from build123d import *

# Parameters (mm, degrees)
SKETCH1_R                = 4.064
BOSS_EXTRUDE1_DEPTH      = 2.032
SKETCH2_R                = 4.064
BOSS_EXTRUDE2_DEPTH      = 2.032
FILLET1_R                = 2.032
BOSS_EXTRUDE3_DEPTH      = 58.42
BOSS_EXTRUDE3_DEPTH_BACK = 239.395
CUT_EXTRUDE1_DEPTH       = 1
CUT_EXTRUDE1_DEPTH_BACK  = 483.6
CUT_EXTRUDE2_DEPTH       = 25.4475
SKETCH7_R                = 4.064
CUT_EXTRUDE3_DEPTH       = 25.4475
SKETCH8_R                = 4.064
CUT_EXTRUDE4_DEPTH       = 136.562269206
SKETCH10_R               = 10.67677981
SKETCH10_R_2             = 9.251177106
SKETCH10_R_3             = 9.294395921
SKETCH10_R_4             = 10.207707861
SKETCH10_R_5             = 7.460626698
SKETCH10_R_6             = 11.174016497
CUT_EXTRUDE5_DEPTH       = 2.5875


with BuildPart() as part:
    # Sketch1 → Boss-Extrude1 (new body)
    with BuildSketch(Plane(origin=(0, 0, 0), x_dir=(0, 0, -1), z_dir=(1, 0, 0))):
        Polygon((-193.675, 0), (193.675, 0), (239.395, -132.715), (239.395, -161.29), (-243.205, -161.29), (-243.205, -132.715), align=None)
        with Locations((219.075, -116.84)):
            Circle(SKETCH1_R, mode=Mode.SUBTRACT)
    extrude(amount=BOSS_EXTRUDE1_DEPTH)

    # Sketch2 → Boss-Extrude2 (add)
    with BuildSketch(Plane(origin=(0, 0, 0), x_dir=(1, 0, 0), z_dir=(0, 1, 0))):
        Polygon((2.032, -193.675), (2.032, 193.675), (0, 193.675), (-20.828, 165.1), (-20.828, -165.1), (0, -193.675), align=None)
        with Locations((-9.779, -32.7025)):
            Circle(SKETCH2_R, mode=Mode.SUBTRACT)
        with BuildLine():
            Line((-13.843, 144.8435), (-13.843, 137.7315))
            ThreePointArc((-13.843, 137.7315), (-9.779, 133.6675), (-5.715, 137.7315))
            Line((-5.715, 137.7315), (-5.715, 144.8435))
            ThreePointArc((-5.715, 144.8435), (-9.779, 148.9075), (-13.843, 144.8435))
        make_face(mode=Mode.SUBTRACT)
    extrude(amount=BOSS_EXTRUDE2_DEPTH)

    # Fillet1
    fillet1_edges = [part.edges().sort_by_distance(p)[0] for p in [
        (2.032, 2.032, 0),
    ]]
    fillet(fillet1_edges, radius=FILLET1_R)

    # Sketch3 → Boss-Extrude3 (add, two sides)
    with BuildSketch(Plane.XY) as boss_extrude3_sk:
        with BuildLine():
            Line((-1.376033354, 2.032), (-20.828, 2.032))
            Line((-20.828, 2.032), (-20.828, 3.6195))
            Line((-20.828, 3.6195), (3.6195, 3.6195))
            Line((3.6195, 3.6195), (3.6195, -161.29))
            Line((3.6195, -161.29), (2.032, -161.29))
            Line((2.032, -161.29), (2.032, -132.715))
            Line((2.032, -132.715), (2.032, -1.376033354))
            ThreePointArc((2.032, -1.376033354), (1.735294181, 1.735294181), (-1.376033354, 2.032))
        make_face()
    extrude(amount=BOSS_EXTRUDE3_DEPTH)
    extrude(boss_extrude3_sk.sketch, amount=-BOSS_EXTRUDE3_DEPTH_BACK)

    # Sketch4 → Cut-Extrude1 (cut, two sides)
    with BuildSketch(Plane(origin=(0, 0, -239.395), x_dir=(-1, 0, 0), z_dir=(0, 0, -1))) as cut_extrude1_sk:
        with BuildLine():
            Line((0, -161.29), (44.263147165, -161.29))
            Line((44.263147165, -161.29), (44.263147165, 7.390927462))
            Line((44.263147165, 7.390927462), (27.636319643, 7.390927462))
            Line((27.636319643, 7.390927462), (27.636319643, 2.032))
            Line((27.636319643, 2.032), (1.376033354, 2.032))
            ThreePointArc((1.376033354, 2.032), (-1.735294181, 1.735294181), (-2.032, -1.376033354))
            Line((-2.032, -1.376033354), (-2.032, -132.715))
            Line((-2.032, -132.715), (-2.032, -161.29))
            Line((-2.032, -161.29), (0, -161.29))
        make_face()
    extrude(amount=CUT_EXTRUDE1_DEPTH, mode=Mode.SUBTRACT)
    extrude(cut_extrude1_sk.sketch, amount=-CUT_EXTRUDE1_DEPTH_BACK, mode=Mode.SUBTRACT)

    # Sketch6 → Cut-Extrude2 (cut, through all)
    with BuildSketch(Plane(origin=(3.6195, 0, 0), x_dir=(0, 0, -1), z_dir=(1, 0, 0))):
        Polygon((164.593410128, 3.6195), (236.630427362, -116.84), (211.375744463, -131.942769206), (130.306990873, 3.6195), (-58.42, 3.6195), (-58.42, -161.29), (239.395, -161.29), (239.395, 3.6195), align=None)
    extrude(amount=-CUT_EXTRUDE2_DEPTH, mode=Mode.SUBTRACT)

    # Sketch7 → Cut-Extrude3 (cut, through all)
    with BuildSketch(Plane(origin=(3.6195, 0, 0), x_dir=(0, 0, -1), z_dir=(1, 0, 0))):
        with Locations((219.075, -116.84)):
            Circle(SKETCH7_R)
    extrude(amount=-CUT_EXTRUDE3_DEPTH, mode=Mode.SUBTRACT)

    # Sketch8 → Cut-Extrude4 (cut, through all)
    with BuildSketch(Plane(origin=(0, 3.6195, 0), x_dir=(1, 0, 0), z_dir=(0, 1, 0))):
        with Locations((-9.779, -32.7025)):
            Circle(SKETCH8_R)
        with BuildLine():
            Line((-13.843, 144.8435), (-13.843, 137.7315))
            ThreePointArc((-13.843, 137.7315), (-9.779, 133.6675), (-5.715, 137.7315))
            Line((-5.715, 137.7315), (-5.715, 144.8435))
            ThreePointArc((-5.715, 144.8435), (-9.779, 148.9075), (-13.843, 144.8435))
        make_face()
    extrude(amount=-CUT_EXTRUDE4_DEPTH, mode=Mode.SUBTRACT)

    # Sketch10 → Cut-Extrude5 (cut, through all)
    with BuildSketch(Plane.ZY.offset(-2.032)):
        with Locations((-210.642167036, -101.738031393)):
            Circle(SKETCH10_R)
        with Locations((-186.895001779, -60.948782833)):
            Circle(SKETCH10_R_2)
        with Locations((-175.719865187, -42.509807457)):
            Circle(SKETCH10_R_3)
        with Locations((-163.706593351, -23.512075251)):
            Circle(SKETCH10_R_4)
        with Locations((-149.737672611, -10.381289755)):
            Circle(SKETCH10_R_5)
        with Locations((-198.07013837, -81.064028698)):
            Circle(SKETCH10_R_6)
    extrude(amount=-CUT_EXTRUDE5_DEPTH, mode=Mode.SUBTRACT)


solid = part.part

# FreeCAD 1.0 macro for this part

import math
import FreeCAD as App
import Part
import Sketcher
Q = App.Units.Quantity


def edges_at(feature, points):
    """Names of the edges that pass closest to the given points."""
    edges = feature.Shape.Edges
    near = lambda p: min(range(len(edges)), key=lambda i: edges[i].distToShape(Part.Vertex(*p))[0])
    return sorted({f"Edge{near(p) + 1}" for p in points})


def add_polygon(sketch, points):
    """Adds a closed chain of lines whose ends are joined by coincident constraints."""
    first, n = sketch.GeometryCount, len(points)
    for a, b in zip(points, points[1:] + points[:1]):
        sketch.addGeometry(Part.LineSegment(App.Vector(*a, 0), App.Vector(*b, 0)), False)
    for i in range(n):
        sketch.addConstraint(Sketcher.Constraint("Coincident", first + i, 2, first + (i + 1) % n, 1))

doc = App.newDocument("Part")
body = doc.addObject("PartDesign::Body", "Body")

sketch1 = doc.addObject("Sketcher::SketchObject", "Sketch")
body.addObject(sketch1)
sketch1.AttachmentSupport = (doc.YZ_Plane, [""])
sketch1.MapMode = "FlatFace"
add_polygon(sketch1, [(0, -193.7), (0, 193.7), (-132.7, 243.2), (-161.3, 243.2), (-161.3, -239.4), (-132.7, -239.4)])
sketch1.addGeometry(Part.Circle(App.Vector(-116.8, -219.1, 0), App.Vector(0, 0, 1), 4.1), False)
sketch1.addConstraint([
    Sketcher.Constraint("Vertical", 0),
    Sketcher.Constraint("Horizontal", 2),
    Sketcher.Constraint("Vertical", 3),
    Sketcher.Constraint("Horizontal", 4),
    Sketcher.Constraint("Symmetric", 0, 2, 5, 2, -1, 1),
    Sketcher.Constraint("Vertical", 1, 2, 4, 2),
    Sketcher.Constraint("Diameter", 6, Q("0.32 in")),
    Sketcher.Constraint("DistanceY", 3, 2, 3, 1, Q("19 in")),
    Sketcher.Constraint("DistanceY", 6, 3, 5, 2, Q("1 in")),
    Sketcher.Constraint("DistanceY", 0, 1, 0, 2, Q("15.25 in")),
    Sketcher.Constraint("DistanceX", 6, 3, -1, 1, Q("4.6 in")),
    Sketcher.Constraint("DistanceY", 6, 3, 1, 2, Q("18.2 in")),
    Sketcher.Constraint("DistanceX", 2, 2, 2, 1, Q("1.125 in")),
    Sketcher.Constraint("DistanceX", 2, 2, -1, 1, Q("6.35 in")),
])
pad1 = doc.addObject("PartDesign::Pad", "Pad")
body.addObject(pad1)
pad1.Profile = sketch1
pad1.Length = Q("0.08 in")

sketch2 = doc.addObject("Sketcher::SketchObject", "Sketch001")
body.addObject(sketch2)
sketch2.AttachmentSupport = (doc.XZ_Plane, [""])
sketch2.MapMode = "FlatFace"
add_polygon(sketch2, [(2, 193.7), (2, -193.7), (0, -193.7), (-20.8, -165.1), (-20.8, 165.1), (0, 193.7)])
sketch2.addGeometry(Part.Circle(App.Vector(-9.8, 32.7, 0), App.Vector(0, 0, 1), 4.1), False)
sketch2.addGeometry(Part.LineSegment(App.Vector(-13.8, -137.7, 0), App.Vector(-13.8, -144.8, 0)), False)
sketch2.addGeometry(Part.ArcOfCircle(Part.Circle(App.Vector(-9.8, -144.8, 0), App.Vector(0, 0, 1), 4.1), math.radians(180), math.radians(360)), False)
sketch2.addGeometry(Part.LineSegment(App.Vector(-5.7, -144.8, 0), App.Vector(-5.7, -137.7, 0)), False)
sketch2.addGeometry(Part.ArcOfCircle(Part.Circle(App.Vector(-9.8, -137.7, 0), App.Vector(0, 0, 1), 4.1), math.radians(0), math.radians(180)), False)
sketch2.addConstraint([
    Sketcher.Constraint("Tangent", 7, 2, 8, 1),
    Sketcher.Constraint("Tangent", 8, 2, 9, 1),
    Sketcher.Constraint("Tangent", 9, 2, 10, 1),
    Sketcher.Constraint("Tangent", 10, 2, 7, 1),
    Sketcher.Constraint("Vertical", 0),
    Sketcher.Constraint("Horizontal", 1),
    Sketcher.Constraint("Vertical", 3),
    Sketcher.Constraint("Horizontal", 5),
    Sketcher.Constraint("Vertical", 7),
    Sketcher.Constraint("Vertical", 9),
    Sketcher.Constraint("Equal", 6, 8),
    Sketcher.Constraint("Symmetric", 1, 2, 4, 2, -1, 1),
    Sketcher.Constraint("PointOnObject", 1, 2, -2),
    Sketcher.Constraint("Vertical", 6, 3, 8, 3),
    Sketcher.Constraint("Equal", 2, 4),
    Sketcher.Constraint("Diameter", 6, Q("0.32 in")),
    Sketcher.Constraint("DistanceY", 3, 1, 3, 2, Q("13 in")),
    Sketcher.Constraint("DistanceX", 1, 2, 1, 1, Q("0.08 in")),
    Sketcher.Constraint("DistanceY", 0, 2, 0, 1, Q("15.25 in")),
    Sketcher.Constraint("DistanceY", 7, 2, 7, 1, Q("0.28 in")),
    Sketcher.Constraint("DistanceX", 2, 2, 0, 2, Q("0.9 in")),
    Sketcher.Constraint("DistanceY", 8, 3, 6, 3, Q("6.99 in")),
    Sketcher.Constraint("DistanceX", 6, 3, -1, 1, Q("0.385 in")),
    Sketcher.Constraint("DistanceY", -1, 1, 6, 3, Q("1.2875 in")),
])
pad2 = doc.addObject("PartDesign::Pad", "Pad001")
body.addObject(pad2)
pad2.Profile = sketch2
pad2.Length = Q("0.08 in")
pad2.Reversed = True
doc.recompute()

fillet = doc.addObject("PartDesign::Fillet", "Fillet")
body.addObject(fillet)
fillet.Base = (pad2, edges_at(pad2, [(2.032, 2.032, 0)]))
fillet.Radius = Q("0.08 in")

sketch3 = doc.addObject("Sketcher::SketchObject", "Sketch002")
body.addObject(sketch3)
sketch3.AttachmentSupport = (doc.XY_Plane, [""])
sketch3.MapMode = "FlatFace"
sketch3.addGeometry([
    Part.LineSegment(App.Vector(-20.8, 2, 0), App.Vector(-1.4, 2, 0)),
    Part.ArcOfCircle(Part.Circle(App.Vector(0, 0, 0), App.Vector(0, 0, 1), 2.5), math.radians(-34), math.radians(124)),
    Part.LineSegment(App.Vector(2, -1.4, 0), App.Vector(2, -161.3, 0)),
    Part.LineSegment(App.Vector(2, -161.3, 0), App.Vector(3.6, -161.3, 0)),
    Part.LineSegment(App.Vector(3.6, -161.3, 0), App.Vector(3.6, 3.6, 0)),
    Part.LineSegment(App.Vector(3.6, 3.6, 0), App.Vector(-20.8, 3.6, 0)),
    Part.LineSegment(App.Vector(-20.8, 3.6, 0), App.Vector(-20.8, 2, 0)),
], False)
sketch3.addConstraint([
    Sketcher.Constraint("Coincident", 0, 2, 1, 2),
    Sketcher.Constraint("Coincident", 1, 1, 2, 1),
    Sketcher.Constraint("Coincident", 2, 2, 3, 1),
    Sketcher.Constraint("Coincident", 3, 2, 4, 1),
    Sketcher.Constraint("Coincident", 4, 2, 5, 1),
    Sketcher.Constraint("Coincident", 5, 2, 6, 1),
    Sketcher.Constraint("Coincident", 6, 2, 0, 1),
    Sketcher.Constraint("Horizontal", 0),
    Sketcher.Constraint("Vertical", 2),
    Sketcher.Constraint("Horizontal", 3),
    Sketcher.Constraint("Vertical", 4),
    Sketcher.Constraint("Horizontal", 5),
    Sketcher.Constraint("Vertical", 6),
    Sketcher.Constraint("Coincident", 1, 3, -1, 1),
    Sketcher.Constraint("Equal", 3, 6),
    Sketcher.Constraint("DistanceX", 5, 2, 1, 1, Q("0.9 in")),
    Sketcher.Constraint("DistanceX", 3, 1, 3, 2, Q("0.0625 in")),
    Sketcher.Constraint("DistanceY", -1, 1, 0, 2, Q("0.08 in")),
    Sketcher.Constraint("DistanceX", -1, 1, 1, 1, Q("0.08 in")),
    Sketcher.Constraint("DistanceY", 2, 2, -1, 1, Q("6.35 in")),
    Sketcher.Constraint("Radius", 1, 2.454077),
])
pad3 = doc.addObject("PartDesign::Pad", "Pad002")
body.addObject(pad3)
pad3.Profile = sketch3
pad3.Type = "TwoLengths"
pad3.Length = Q("2.3 in")
pad3.Length2 = Q("9.425 in")

sketch4 = doc.addObject("Sketcher::SketchObject", "Sketch003")
body.addObject(sketch4)
sketch4.AttachmentSupport = (doc.XY_Plane, [""])
sketch4.MapMode = "FlatFace"
sketch4.AttachmentOffset = App.Placement(App.Vector(0, 0, -9.425 * 25.4), App.Rotation())
sketch4.addGeometry([
    Part.LineSegment(App.Vector(-44.3, -161.3, 0), App.Vector(-44.3, 7.4, 0)),
    Part.LineSegment(App.Vector(-44.3, 7.4, 0), App.Vector(-27.6, 7.4, 0)),
    Part.LineSegment(App.Vector(-27.6, 7.4, 0), App.Vector(-27.6, 2, 0)),
    Part.LineSegment(App.Vector(-27.6, 2, 0), App.Vector(-1.4, 2, 0)),
    Part.ArcOfCircle(Part.Circle(App.Vector(0, 0, 0), App.Vector(0, 0, 1), 2.5), math.radians(-34), math.radians(124)),
    Part.LineSegment(App.Vector(2, -1.4, 0), App.Vector(2, -161.3, 0)),
    Part.LineSegment(App.Vector(2, -161.3, 0), App.Vector(-44.3, -161.3, 0)),
], False)
sketch4.addConstraint([
    Sketcher.Constraint("Coincident", 0, 2, 1, 1),
    Sketcher.Constraint("Coincident", 1, 2, 2, 1),
    Sketcher.Constraint("Coincident", 2, 2, 3, 1),
    Sketcher.Constraint("Coincident", 3, 2, 4, 2),
    Sketcher.Constraint("Coincident", 4, 1, 5, 1),
    Sketcher.Constraint("Coincident", 5, 2, 6, 1),
    Sketcher.Constraint("Coincident", 6, 2, 0, 1),
    Sketcher.Constraint("Vertical", 0),
    Sketcher.Constraint("Horizontal", 1),
    Sketcher.Constraint("Vertical", 2),
    Sketcher.Constraint("Horizontal", 3),
    Sketcher.Constraint("Vertical", 5),
    Sketcher.Constraint("Horizontal", 6),
    Sketcher.Constraint("Coincident", 4, 3, -1, 1),
    Sketcher.Constraint("DistanceY", -1, 1, 2, 2, Q("0.08 in")),
    Sketcher.Constraint("DistanceX", -1, 1, 4, 1, Q("0.08 in")),
    Sketcher.Constraint("DistanceY", 5, 2, -1, 1, Q("6.35 in")),
    Sketcher.Constraint("Radius", 4, 2.454077),
    Sketcher.Constraint("DistanceX", 1, 1, 1, 2, 16.626828),
    Sketcher.Constraint("DistanceX", 3, 1, 3, 2, 26.260286),
    Sketcher.Constraint("DistanceY", 0, 1, 0, 2, 168.680927),
])
pocket1 = doc.addObject("PartDesign::Pocket", "Pocket")
body.addObject(pocket1)
pocket1.Profile = sketch4
pocket1.Type = "ThroughAll"
pocket1.Midplane = True

sketch5 = doc.addObject("Sketcher::SketchObject", "Sketch004")
body.addObject(sketch5)
sketch5.AttachmentSupport = (doc.YZ_Plane, [""])
sketch5.MapMode = "FlatFace"
sketch5.AttachmentOffset = App.Placement(App.Vector(0, 0, 0.1425 * 25.4), App.Rotation())
add_polygon(sketch5, [(4, -165), (-117, -237), (-132, -211), (4, -130), (4, 58), (-161, 58), (-161, -239), (4, -239)])
sketch5.addConstraint([
    Sketcher.Constraint("Vertical", 3),
    Sketcher.Constraint("Horizontal", 4),
    Sketcher.Constraint("Vertical", 5),
    Sketcher.Constraint("Horizontal", 6),
    Sketcher.Constraint("Vertical", 7),
    Sketcher.Constraint("Perpendicular", 0, 1),
    Sketcher.Constraint("Perpendicular", 1, 2),
    Sketcher.Constraint("Vertical", 3, 2, 6, 2),
    Sketcher.Constraint("DistanceX", 0, 2, -1, 1, Q("4.6 in")),
    Sketcher.Constraint("DistanceY", -1, 1, 3, 2, Q("2.3 in")),
    Sketcher.Constraint("DistanceY", 5, 2, 5, 1, Q("11.725 in")),
    Sketcher.Constraint("DistanceX", 4, 2, -1, 1, Q("6.35 in")),
    Sketcher.Constraint("DistanceX", 4, 2, 4, 1, Q("6.4925 in")),
    Sketcher.Constraint("DistanceY", 3, 1, 3, 2, 188.726991),
    Sketcher.Constraint("DistanceY", 7, 1, 7, 2, 74.80159),
    Sketcher.Constraint("DistanceX", 1, 2, -1, 1, 131.942769),
])
pocket2 = doc.addObject("PartDesign::Pocket", "Pocket001")
body.addObject(pocket2)
pocket2.Profile = sketch5
pocket2.Type = "ThroughAll"

sketch6 = doc.addObject("Sketcher::SketchObject", "Sketch005")
body.addObject(sketch6)
sketch6.AttachmentSupport = (doc.YZ_Plane, [""])
sketch6.MapMode = "FlatFace"
sketch6.AttachmentOffset = App.Placement(App.Vector(0, 0, 0.1425 * 25.4), App.Rotation())
sketch6.addGeometry(Part.Circle(App.Vector(-116.8, -219.1, 0), App.Vector(0, 0, 1), 4.1), False)
sketch6.addConstraint([
    Sketcher.Constraint("Diameter", 0, Q("0.32 in")),
    Sketcher.Constraint("DistanceX", 0, 3, -1, 1, Q("4.6 in")),
    Sketcher.Constraint("DistanceY", 0, 3, -1, 1, Q("8.625 in")),
])
pocket3 = doc.addObject("PartDesign::Pocket", "Pocket002")
body.addObject(pocket3)
pocket3.Profile = sketch6
pocket3.Type = "ThroughAll"

sketch7 = doc.addObject("Sketcher::SketchObject", "Sketch006")
body.addObject(sketch7)
sketch7.AttachmentSupport = (doc.XZ_Plane, [""])
sketch7.MapMode = "FlatFace"
sketch7.AttachmentOffset = App.Placement(App.Vector(0, 0, -0.1425 * 25.4), App.Rotation())
sketch7.addGeometry([
    Part.Circle(App.Vector(-9.8, 32.7, 0), App.Vector(0, 0, 1), 4.1),
    Part.LineSegment(App.Vector(-13.8, -144.8, 0), App.Vector(-13.8, -137.7, 0)),
    Part.ArcOfCircle(Part.Circle(App.Vector(-9.8, -137.7, 0), App.Vector(0, 0, 1), 4.1), math.radians(0), math.radians(180)),
    Part.LineSegment(App.Vector(-5.7, -137.7, 0), App.Vector(-5.7, -144.8, 0)),
    Part.ArcOfCircle(Part.Circle(App.Vector(-9.8, -144.8, 0), App.Vector(0, 0, 1), 4.1), math.radians(180), math.radians(360)),
], False)
sketch7.addConstraint([
    Sketcher.Constraint("Tangent", 1, 2, 2, 2),
    Sketcher.Constraint("Tangent", 2, 1, 3, 1),
    Sketcher.Constraint("Tangent", 3, 2, 4, 2),
    Sketcher.Constraint("Tangent", 4, 1, 1, 1),
    Sketcher.Constraint("Vertical", 1),
    Sketcher.Constraint("Vertical", 3),
    Sketcher.Constraint("Equal", 0, 2),
    Sketcher.Constraint("Vertical", 0, 3, 2, 3),
    Sketcher.Constraint("Diameter", 0, Q("0.32 in")),
    Sketcher.Constraint("DistanceY", 1, 1, 1, 2, Q("0.28 in")),
    Sketcher.Constraint("DistanceY", 2, 3, 0, 3, Q("6.71 in")),
    Sketcher.Constraint("DistanceX", 0, 3, -1, 1, Q("0.385 in")),
    Sketcher.Constraint("DistanceY", -1, 1, 0, 3, Q("1.2875 in")),
])
pocket4 = doc.addObject("PartDesign::Pocket", "Pocket003")
body.addObject(pocket4)
pocket4.Profile = sketch7
pocket4.Type = "ThroughAll"
pocket4.Reversed = True

sketch8 = doc.addObject("Sketcher::SketchObject", "Sketch007")
body.addObject(sketch8)
sketch8.AttachmentSupport = (doc.YZ_Plane, [""])
sketch8.MapMode = "FlatFace"
sketch8.AttachmentOffset = App.Placement(App.Vector(0, 0, 0.08 * 25.4), App.Rotation())
sketch8.addGeometry([
    Part.Circle(App.Vector(-102, -211, 0), App.Vector(0, 0, 1), 11),
    Part.Circle(App.Vector(-61, -187, 0), App.Vector(0, 0, 1), 9),
    Part.Circle(App.Vector(-43, -176, 0), App.Vector(0, 0, 1), 9),
    Part.Circle(App.Vector(-24, -164, 0), App.Vector(0, 0, 1), 10),
    Part.Circle(App.Vector(-10, -150, 0), App.Vector(0, 0, 1), 7),
    Part.Circle(App.Vector(-81, -198, 0), App.Vector(0, 0, 1), 11),
], False)
sketch8.addConstraint([
    Sketcher.Constraint("Diameter", 0, 21.35356),
    Sketcher.Constraint("Diameter", 2, 18.588792),
    Sketcher.Constraint("Diameter", 1, 18.502354),
    Sketcher.Constraint("Diameter", 3, 20.415416),
    Sketcher.Constraint("Diameter", 4, 14.921253),
    Sketcher.Constraint("Diameter", 5, 22.348033),
    Sketcher.Constraint("DistanceY", 1, 3, -1, 1, 186.895002),
    Sketcher.Constraint("DistanceY", 0, 3, 2, 3, 34.922302),
    Sketcher.Constraint("DistanceX", 0, 3, -1, 1, 101.738031),
    Sketcher.Constraint("DistanceX", 4, 3, -1, 1, 10.38129),
    Sketcher.Constraint("DistanceX", 5, 3, -1, 1, 81.064029),
    Sketcher.Constraint("DistanceY", 5, 3, -1, 1, 198.070138),
    Sketcher.Constraint("DistanceX", 0, 3, 1, 3, 40.789249),
    Sketcher.Constraint("DistanceY", 2, 3, 3, 3, 12.013272),
    Sketcher.Constraint("DistanceY", 1, 3, 3, 3, 23.188408),
    Sketcher.Constraint("DistanceY", 3, 3, 4, 3, 13.968921),
    Sketcher.Constraint("DistanceX", 5, 3, 2, 3, 38.554221),
    Sketcher.Constraint("DistanceX", 3, 3, -1, 1, 23.512075),
])
pocket5 = doc.addObject("PartDesign::Pocket", "Pocket004")
body.addObject(pocket5)
pocket5.Profile = sketch8
pocket5.Type = "ThroughAll"
pocket5.Reversed = True

doc.recompute()
